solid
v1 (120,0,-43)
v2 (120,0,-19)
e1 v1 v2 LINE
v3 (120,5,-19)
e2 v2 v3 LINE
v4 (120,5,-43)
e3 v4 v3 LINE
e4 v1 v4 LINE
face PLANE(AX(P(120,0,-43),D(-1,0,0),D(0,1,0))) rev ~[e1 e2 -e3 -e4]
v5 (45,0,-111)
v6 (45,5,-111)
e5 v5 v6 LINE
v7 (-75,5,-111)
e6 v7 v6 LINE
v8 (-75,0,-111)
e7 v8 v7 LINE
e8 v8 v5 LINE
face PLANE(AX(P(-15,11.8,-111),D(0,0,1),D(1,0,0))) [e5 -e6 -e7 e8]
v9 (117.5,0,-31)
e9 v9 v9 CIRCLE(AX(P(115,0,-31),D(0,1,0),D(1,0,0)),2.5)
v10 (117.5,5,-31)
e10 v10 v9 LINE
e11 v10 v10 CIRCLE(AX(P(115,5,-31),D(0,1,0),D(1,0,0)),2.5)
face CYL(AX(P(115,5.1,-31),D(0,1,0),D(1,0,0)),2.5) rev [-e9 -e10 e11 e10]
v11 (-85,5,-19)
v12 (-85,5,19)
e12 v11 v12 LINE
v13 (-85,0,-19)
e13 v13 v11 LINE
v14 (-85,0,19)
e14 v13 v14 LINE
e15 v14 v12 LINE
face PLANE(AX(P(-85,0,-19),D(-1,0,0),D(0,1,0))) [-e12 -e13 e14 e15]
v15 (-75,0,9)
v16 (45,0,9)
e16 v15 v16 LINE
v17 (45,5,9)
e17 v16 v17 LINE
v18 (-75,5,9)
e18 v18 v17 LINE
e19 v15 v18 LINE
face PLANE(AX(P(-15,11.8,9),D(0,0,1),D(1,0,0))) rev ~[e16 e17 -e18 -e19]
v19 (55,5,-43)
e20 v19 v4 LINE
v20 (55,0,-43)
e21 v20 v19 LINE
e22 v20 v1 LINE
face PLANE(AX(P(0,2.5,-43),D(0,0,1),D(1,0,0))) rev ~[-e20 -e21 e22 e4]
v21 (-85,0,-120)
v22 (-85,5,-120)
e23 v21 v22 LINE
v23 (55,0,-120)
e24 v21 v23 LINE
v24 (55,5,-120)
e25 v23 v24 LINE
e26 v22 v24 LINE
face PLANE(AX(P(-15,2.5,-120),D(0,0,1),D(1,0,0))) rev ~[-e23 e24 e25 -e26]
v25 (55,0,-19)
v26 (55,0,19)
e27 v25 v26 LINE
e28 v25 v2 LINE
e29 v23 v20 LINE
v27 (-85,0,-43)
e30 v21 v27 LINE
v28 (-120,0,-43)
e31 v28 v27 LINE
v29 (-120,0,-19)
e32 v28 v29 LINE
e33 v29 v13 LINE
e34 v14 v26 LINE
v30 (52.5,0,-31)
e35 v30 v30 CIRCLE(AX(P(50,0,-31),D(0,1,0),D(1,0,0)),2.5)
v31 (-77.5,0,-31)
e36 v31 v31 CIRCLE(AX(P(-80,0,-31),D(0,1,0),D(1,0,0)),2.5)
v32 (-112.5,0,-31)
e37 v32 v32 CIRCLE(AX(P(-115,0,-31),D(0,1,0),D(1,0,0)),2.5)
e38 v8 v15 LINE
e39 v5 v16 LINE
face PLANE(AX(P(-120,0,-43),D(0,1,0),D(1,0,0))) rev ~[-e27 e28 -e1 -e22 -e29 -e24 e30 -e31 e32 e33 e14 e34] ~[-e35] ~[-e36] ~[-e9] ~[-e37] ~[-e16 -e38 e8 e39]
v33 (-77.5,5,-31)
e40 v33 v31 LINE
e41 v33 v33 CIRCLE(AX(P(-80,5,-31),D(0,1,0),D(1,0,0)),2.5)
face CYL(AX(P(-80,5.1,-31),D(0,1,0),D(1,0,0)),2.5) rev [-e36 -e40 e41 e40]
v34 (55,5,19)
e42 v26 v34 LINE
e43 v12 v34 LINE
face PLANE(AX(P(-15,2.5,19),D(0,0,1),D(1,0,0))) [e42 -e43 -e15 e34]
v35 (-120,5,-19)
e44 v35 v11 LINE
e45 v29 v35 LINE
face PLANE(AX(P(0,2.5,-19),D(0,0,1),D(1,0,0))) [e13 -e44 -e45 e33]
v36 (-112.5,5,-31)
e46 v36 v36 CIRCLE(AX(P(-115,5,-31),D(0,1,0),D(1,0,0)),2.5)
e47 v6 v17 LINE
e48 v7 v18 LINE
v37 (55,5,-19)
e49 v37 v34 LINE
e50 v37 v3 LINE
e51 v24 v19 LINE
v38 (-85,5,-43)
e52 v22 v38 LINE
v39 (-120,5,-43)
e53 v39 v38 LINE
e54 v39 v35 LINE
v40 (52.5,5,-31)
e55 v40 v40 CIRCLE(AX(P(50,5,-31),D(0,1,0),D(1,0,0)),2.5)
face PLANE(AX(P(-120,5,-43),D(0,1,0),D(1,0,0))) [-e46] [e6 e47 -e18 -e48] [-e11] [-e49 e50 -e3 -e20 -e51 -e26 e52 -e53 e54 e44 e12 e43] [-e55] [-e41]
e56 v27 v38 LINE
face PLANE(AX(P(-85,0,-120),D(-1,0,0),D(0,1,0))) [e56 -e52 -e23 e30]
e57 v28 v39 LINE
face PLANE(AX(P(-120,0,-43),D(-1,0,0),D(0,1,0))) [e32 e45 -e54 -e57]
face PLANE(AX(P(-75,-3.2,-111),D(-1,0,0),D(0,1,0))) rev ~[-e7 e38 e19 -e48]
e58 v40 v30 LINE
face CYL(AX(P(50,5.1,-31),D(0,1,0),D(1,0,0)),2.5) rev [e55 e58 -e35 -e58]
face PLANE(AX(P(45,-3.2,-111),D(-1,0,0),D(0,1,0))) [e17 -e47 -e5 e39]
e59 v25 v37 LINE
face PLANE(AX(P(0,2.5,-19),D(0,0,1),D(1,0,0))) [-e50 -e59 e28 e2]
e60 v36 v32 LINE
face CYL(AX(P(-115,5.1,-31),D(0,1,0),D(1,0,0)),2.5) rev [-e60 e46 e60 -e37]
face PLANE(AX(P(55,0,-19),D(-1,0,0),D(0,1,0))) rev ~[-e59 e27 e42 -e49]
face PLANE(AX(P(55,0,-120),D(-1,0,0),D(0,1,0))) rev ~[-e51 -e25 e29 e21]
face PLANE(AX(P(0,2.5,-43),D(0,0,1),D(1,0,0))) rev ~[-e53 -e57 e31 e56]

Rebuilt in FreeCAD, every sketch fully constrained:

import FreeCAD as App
import Part
import Sketcher
Q = App.Units.Quantity

doc = App.newDocument("Part")
body = doc.addObject("PartDesign::Body", "Body")

# Sketch on XY plane
sketch1 = body.newObject("Sketcher::SketchObject", "Sketch")
sketch1.AttachmentSupport = (doc.getObject("XY_Plane"), [""])
sketch1.MapMode = "FlatFace"
sketch1.AttachmentOffset = App.Placement(App.Vector(0, 0, -111), App.Rotation())
sketch1.addGeometry([
    Part.LineSegment(App.Vector(-75, 27, 0), App.Vector(-75, -3, 0)),
    Part.LineSegment(App.Vector(-75, -3, 0), App.Vector(45, -3, 0)),
    Part.LineSegment(App.Vector(45, -3, 0), App.Vector(45, 27, 0)),
    Part.LineSegment(App.Vector(45, 27, 0), App.Vector(-75, 27, 0)),
], False)
sketch1.addConstraint([
    Sketcher.Constraint("Coincident", 0, 2, 1, 1),
    Sketcher.Constraint("Coincident", 1, 2, 2, 1),
    Sketcher.Constraint("Coincident", 2, 2, 3, 1),
    Sketcher.Constraint("Coincident", 3, 2, 0, 1),
    Sketcher.Constraint("Vertical", 0),
    Sketcher.Constraint("Horizontal", 1),
    Sketcher.Constraint("Vertical", 2),
    Sketcher.Constraint("Horizontal", 3),
    Sketcher.Constraint("DistanceX", 1, 1, 1, 2, Q("120 mm")),
    Sketcher.Constraint("DistanceY", 0, 2, 0, 1, Q("30 mm")),
    Sketcher.Constraint("DistanceX", 0, 2, -1, 1, Q("75 mm")),
    Sketcher.Constraint("DistanceY", 0, 2, -1, 1, Q("3.2 mm")),
])
pad1 = body.newObject("PartDesign::Pad", "Pad")
pad1.Profile = sketch1
pad1.Length = 120
body2 = doc.addObject("PartDesign::Body", "Body001")

# Sketch on XZ plane
sketch2 = body2.newObject("Sketcher::SketchObject", "Sketch001")
sketch2.AttachmentSupport = (doc.getObject("XZ_Plane001"), [""])
sketch2.MapMode = "FlatFace"
sketch2.addGeometry(Part.Circle(App.Vector(115, -31, 0), App.Vector(0, 0, 1), 2.5), False)
sketch2.addConstraint([
    Sketcher.Constraint("Diameter", 0, Q("5 mm")),
    Sketcher.Constraint("DistanceX", -1, 1, 0, 3, Q("115 mm")),
    Sketcher.Constraint("DistanceY", 0, 3, -1, 1, Q("31 mm")),
])
pad2 = body2.newObject("PartDesign::Pad", "Pad001")
pad2.Profile = sketch2
pad2.Length = 10
body3 = doc.addObject("PartDesign::Body", "Body002")

# Sketch on XZ plane
sketch3 = body3.newObject("Sketcher::SketchObject", "Sketch002")
sketch3.AttachmentSupport = (doc.getObject("XZ_Plane002"), [""])
sketch3.MapMode = "FlatFace"
sketch3.addGeometry(Part.Circle(App.Vector(-80, -31, 0), App.Vector(0, 0, 1), 2.5), False)
sketch3.addConstraint([
    Sketcher.Constraint("Diameter", 0, Q("5 mm")),
    Sketcher.Constraint("DistanceX", 0, 3, -1, 1, Q("80 mm")),
    Sketcher.Constraint("DistanceY", 0, 3, -1, 1, Q("31 mm")),
])
pad3 = body3.newObject("PartDesign::Pad", "Pad002")
pad3.Profile = sketch3
pad3.Length = 10
body4 = doc.addObject("PartDesign::Body", "Body003")

# Sketch on XZ plane
sketch4 = body4.newObject("Sketcher::SketchObject", "Sketch003")
sketch4.AttachmentSupport = (doc.getObject("XZ_Plane003"), [""])
sketch4.MapMode = "FlatFace"
sketch4.addGeometry(Part.Circle(App.Vector(50, -31, 0), App.Vector(0, 0, 1), 2.5), False)
sketch4.addConstraint([
    Sketcher.Constraint("Diameter", 0, Q("5 mm")),
    Sketcher.Constraint("DistanceX", -1, 1, 0, 3, Q("50 mm")),
    Sketcher.Constraint("DistanceY", 0, 3, -1, 1, Q("31 mm")),
])
pad4 = body4.newObject("PartDesign::Pad", "Pad003")
pad4.Profile = sketch4
pad4.Length = 10
body5 = doc.addObject("PartDesign::Body", "Body004")

# Sketch on XZ plane
sketch5 = body5.newObject("Sketcher::SketchObject", "Sketch004")
sketch5.AttachmentSupport = (doc.getObject("XZ_Plane004"), [""])
sketch5.MapMode = "FlatFace"
sketch5.addGeometry(Part.Circle(App.Vector(-45.8, -56.3, 0), App.Vector(0, 0, 1), 2.5), False)
sketch5.addConstraint([
    Sketcher.Constraint("Diameter", 0, Q("5 mm")),
    Sketcher.Constraint("DistanceY", 0, 3, -1, 1, Q("56.3 mm")),
    Sketcher.Constraint("DistanceX", 0, 3, -1, 1, Q("45.75 mm")),
])
pad5 = body5.newObject("PartDesign::Pad", "Pad004")
pad5.Profile = sketch5
pad5.Length = 10
body6 = doc.addObject("PartDesign::Body", "Body005")

# Sketch on XZ plane
sketch6 = body6.newObject("Sketcher::SketchObject", "Sketch005")
sketch6.AttachmentSupport = (doc.getObject("XZ_Plane005"), [""])
sketch6.MapMode = "FlatFace"
sketch6.addGeometry(Part.Circle(App.Vector(-115, -31, 0), App.Vector(0, 0, 1), 2.5), False)
sketch6.addConstraint([
    Sketcher.Constraint("Diameter", 0, Q("5 mm")),
    Sketcher.Constraint("DistanceX", 0, 3, -1, 1, Q("115 mm")),
    Sketcher.Constraint("DistanceY", 0, 3, -1, 1, Q("31 mm")),
])
pad6 = body6.newObject("PartDesign::Pad", "Pad005")
pad6.Profile = sketch6
pad6.Length = 10
body7 = doc.addObject("PartDesign::Body", "Body006")
body7.AllowCompound = True

# Sketch on XZ plane
sketch7 = body7.newObject("Sketcher::SketchObject", "Sketch006")
sketch7.AttachmentSupport = (doc.getObject("XZ_Plane006"), [""])
sketch7.MapMode = "FlatFace"
sketch7.addGeometry(Part.Circle(App.Vector(-45.8, -1.3, 0), App.Vector(0, 0, 1), 2.5), False)
sketch7.addConstraint([
    Sketcher.Constraint("Diameter", 0, Q("5 mm")),
    Sketcher.Constraint("DistanceY", 0, 3, -1, 1, Q("1.3 mm")),
    Sketcher.Constraint("DistanceX", 0, 3, -1, 1, Q("45.75 mm")),
])
pad7 = body7.newObject("PartDesign::Pad", "Pad006")
pad7.Profile = sketch7
pad7.Length = 10
doc.recompute()

boolean = body7.newObject("PartDesign::Boolean", "Boolean")
boolean.Type = "Fuse"
boolean.addObjects([body2])
doc.recompute()

boolean2 = body7.newObject("PartDesign::Boolean", "Boolean001")
boolean2.Type = "Fuse"
boolean2.addObjects([body3])
doc.recompute()

boolean3 = body7.newObject("PartDesign::Boolean", "Boolean002")
boolean3.Type = "Fuse"
boolean3.addObjects([body4])
doc.recompute()

boolean4 = body7.newObject("PartDesign::Boolean", "Boolean003")
boolean4.Type = "Fuse"
boolean4.addObjects([body5])
doc.recompute()

boolean5 = body7.newObject("PartDesign::Boolean", "Boolean004")
boolean5.Type = "Fuse"
boolean5.addObjects([body6])
body8 = doc.addObject("PartDesign::Body", "Body007")
body8.AllowCompound = True
doc.recompute()

body7.Placement = App.Placement(App.Vector(0, 5.1, 0), App.Rotation(App.Vector(0, 0, 1), 0))
boolean6 = body8.newObject("PartDesign::Boolean", "Boolean005")
boolean6.Type = "Fuse"
boolean6.addObjects([body7])
body9 = doc.addObject("PartDesign::Body", "Body008")

# Sketch on XY plane
sketch8 = body9.newObject("Sketcher::SketchObject", "Sketch007")
sketch8.AttachmentSupport = (doc.getObject("XY_Plane008"), [""])
sketch8.MapMode = "FlatFace"
sketch8.AttachmentOffset = App.Placement(App.Vector(0, 0, -43), App.Rotation())
sketch8.addGeometry([
    Part.LineSegment(App.Vector(-120, 5, 0), App.Vector(-120, 0, 0)),
    Part.LineSegment(App.Vector(-120, 0, 0), App.Vector(120, 0, 0)),
    Part.LineSegment(App.Vector(120, 0, 0), App.Vector(120, 5, 0)),
    Part.LineSegment(App.Vector(120, 5, 0), App.Vector(-120, 5, 0)),
], False)
sketch8.addConstraint([
    Sketcher.Constraint("Coincident", 0, 2, 1, 1),
    Sketcher.Constraint("Coincident", 1, 2, 2, 1),
    Sketcher.Constraint("Coincident", 2, 2, 3, 1),
    Sketcher.Constraint("Coincident", 3, 2, 0, 1),
    Sketcher.Constraint("Vertical", 0),
    Sketcher.Constraint("Horizontal", 1),
    Sketcher.Constraint("Vertical", 2),
    Sketcher.Constraint("Horizontal", 3),
    Sketcher.Constraint("Symmetric", 0, 2, 1, 2, -1, 1),
    Sketcher.Constraint("DistanceX", 1, 1, 1, 2, Q("240 mm")),
    Sketcher.Constraint("DistanceY", 0, 2, 0, 1, Q("5 mm")),
])
pad8 = body9.newObject("PartDesign::Pad", "Pad007")
pad8.Profile = sketch8
pad8.Length = 24
body10 = doc.addObject("PartDesign::Body", "Body009")

# Sketch on XY plane
sketch9 = body10.newObject("Sketcher::SketchObject", "Sketch008")
sketch9.AttachmentSupport = (doc.getObject("XY_Plane009"), [""])
sketch9.MapMode = "FlatFace"
sketch9.AttachmentOffset = App.Placement(App.Vector(0, 0, -19), App.Rotation())
sketch9.addGeometry([
    Part.LineSegment(App.Vector(-85, 5, 0), App.Vector(-85, 0, 0)),
    Part.LineSegment(App.Vector(-85, 0, 0), App.Vector(55, 0, 0)),
    Part.LineSegment(App.Vector(55, 0, 0), App.Vector(55, 5, 0)),
    Part.LineSegment(App.Vector(55, 5, 0), App.Vector(-85, 5, 0)),
], False)
sketch9.addConstraint([
    Sketcher.Constraint("Coincident", 0, 2, 1, 1),
    Sketcher.Constraint("Coincident", 1, 2, 2, 1),
    Sketcher.Constraint("Coincident", 2, 2, 3, 1),
    Sketcher.Constraint("Coincident", 3, 2, 0, 1),
    Sketcher.Constraint("Vertical", 0),
    Sketcher.Constraint("Horizontal", 1),
    Sketcher.Constraint("Vertical", 2),
    Sketcher.Constraint("Horizontal", 3),
    Sketcher.Constraint("PointOnObject", 0, 2, -1),
    Sketcher.Constraint("DistanceX", 1, 1, 1, 2, Q("140 mm")),
    Sketcher.Constraint("DistanceY", 0, 2, 0, 1, Q("5 mm")),
    Sketcher.Constraint("DistanceX", 0, 2, -1, 1, Q("85 mm")),
])
pad9 = body10.newObject("PartDesign::Pad", "Pad008")
pad9.Profile = sketch9
pad9.Length = 38
body11 = doc.addObject("PartDesign::Body", "Body010")

# Sketch on XY plane
sketch10 = body11.newObject("Sketcher::SketchObject", "Sketch009")
sketch10.AttachmentSupport = (doc.getObject("XY_Plane010"), [""])
sketch10.MapMode = "FlatFace"
sketch10.AttachmentOffset = App.Placement(App.Vector(0, 0, -120), App.Rotation())
sketch10.addGeometry([
    Part.LineSegment(App.Vector(-85, 5, 0), App.Vector(-85, 0, 0)),
    Part.LineSegment(App.Vector(-85, 0, 0), App.Vector(55, 0, 0)),
    Part.LineSegment(App.Vector(55, 0, 0), App.Vector(55, 5, 0)),
    Part.LineSegment(App.Vector(55, 5, 0), App.Vector(-85, 5, 0)),
], False)
sketch10.addConstraint([
    Sketcher.Constraint("Coincident", 0, 2, 1, 1),
    Sketcher.Constraint("Coincident", 1, 2, 2, 1),
    Sketcher.Constraint("Coincident", 2, 2, 3, 1),
    Sketcher.Constraint("Coincident", 3, 2, 0, 1),
    Sketcher.Constraint("Vertical", 0),
    Sketcher.Constraint("Horizontal", 1),
    Sketcher.Constraint("Vertical", 2),
    Sketcher.Constraint("Horizontal", 3),
    Sketcher.Constraint("PointOnObject", 0, 2, -1),
    Sketcher.Constraint("DistanceX", 1, 1, 1, 2, Q("140 mm")),
    Sketcher.Constraint("DistanceY", 0, 2, 0, 1, Q("5 mm")),
    Sketcher.Constraint("DistanceX", 0, 2, -1, 1, Q("85 mm")),
])
pad10 = body11.newObject("PartDesign::Pad", "Pad009")
pad10.Profile = sketch10
pad10.Length = 77
doc.recompute()

boolean7 = body11.newObject("PartDesign::Boolean", "Boolean006")
boolean7.Type = "Fuse"
boolean7.addObjects([body9])
doc.recompute()

boolean8 = body11.newObject("PartDesign::Boolean", "Boolean007")
boolean8.Type = "Fuse"
boolean8.addObjects([body10])
doc.recompute()

boolean9 = body11.newObject("PartDesign::Boolean", "Boolean008")
boolean9.Type = "Cut"
boolean9.addObjects([body8])
doc.recompute()

boolean10 = body11.newObject("PartDesign::Boolean", "Boolean009")
boolean10.Type = "Cut"
boolean10.addObjects([body])

doc.recompute()
